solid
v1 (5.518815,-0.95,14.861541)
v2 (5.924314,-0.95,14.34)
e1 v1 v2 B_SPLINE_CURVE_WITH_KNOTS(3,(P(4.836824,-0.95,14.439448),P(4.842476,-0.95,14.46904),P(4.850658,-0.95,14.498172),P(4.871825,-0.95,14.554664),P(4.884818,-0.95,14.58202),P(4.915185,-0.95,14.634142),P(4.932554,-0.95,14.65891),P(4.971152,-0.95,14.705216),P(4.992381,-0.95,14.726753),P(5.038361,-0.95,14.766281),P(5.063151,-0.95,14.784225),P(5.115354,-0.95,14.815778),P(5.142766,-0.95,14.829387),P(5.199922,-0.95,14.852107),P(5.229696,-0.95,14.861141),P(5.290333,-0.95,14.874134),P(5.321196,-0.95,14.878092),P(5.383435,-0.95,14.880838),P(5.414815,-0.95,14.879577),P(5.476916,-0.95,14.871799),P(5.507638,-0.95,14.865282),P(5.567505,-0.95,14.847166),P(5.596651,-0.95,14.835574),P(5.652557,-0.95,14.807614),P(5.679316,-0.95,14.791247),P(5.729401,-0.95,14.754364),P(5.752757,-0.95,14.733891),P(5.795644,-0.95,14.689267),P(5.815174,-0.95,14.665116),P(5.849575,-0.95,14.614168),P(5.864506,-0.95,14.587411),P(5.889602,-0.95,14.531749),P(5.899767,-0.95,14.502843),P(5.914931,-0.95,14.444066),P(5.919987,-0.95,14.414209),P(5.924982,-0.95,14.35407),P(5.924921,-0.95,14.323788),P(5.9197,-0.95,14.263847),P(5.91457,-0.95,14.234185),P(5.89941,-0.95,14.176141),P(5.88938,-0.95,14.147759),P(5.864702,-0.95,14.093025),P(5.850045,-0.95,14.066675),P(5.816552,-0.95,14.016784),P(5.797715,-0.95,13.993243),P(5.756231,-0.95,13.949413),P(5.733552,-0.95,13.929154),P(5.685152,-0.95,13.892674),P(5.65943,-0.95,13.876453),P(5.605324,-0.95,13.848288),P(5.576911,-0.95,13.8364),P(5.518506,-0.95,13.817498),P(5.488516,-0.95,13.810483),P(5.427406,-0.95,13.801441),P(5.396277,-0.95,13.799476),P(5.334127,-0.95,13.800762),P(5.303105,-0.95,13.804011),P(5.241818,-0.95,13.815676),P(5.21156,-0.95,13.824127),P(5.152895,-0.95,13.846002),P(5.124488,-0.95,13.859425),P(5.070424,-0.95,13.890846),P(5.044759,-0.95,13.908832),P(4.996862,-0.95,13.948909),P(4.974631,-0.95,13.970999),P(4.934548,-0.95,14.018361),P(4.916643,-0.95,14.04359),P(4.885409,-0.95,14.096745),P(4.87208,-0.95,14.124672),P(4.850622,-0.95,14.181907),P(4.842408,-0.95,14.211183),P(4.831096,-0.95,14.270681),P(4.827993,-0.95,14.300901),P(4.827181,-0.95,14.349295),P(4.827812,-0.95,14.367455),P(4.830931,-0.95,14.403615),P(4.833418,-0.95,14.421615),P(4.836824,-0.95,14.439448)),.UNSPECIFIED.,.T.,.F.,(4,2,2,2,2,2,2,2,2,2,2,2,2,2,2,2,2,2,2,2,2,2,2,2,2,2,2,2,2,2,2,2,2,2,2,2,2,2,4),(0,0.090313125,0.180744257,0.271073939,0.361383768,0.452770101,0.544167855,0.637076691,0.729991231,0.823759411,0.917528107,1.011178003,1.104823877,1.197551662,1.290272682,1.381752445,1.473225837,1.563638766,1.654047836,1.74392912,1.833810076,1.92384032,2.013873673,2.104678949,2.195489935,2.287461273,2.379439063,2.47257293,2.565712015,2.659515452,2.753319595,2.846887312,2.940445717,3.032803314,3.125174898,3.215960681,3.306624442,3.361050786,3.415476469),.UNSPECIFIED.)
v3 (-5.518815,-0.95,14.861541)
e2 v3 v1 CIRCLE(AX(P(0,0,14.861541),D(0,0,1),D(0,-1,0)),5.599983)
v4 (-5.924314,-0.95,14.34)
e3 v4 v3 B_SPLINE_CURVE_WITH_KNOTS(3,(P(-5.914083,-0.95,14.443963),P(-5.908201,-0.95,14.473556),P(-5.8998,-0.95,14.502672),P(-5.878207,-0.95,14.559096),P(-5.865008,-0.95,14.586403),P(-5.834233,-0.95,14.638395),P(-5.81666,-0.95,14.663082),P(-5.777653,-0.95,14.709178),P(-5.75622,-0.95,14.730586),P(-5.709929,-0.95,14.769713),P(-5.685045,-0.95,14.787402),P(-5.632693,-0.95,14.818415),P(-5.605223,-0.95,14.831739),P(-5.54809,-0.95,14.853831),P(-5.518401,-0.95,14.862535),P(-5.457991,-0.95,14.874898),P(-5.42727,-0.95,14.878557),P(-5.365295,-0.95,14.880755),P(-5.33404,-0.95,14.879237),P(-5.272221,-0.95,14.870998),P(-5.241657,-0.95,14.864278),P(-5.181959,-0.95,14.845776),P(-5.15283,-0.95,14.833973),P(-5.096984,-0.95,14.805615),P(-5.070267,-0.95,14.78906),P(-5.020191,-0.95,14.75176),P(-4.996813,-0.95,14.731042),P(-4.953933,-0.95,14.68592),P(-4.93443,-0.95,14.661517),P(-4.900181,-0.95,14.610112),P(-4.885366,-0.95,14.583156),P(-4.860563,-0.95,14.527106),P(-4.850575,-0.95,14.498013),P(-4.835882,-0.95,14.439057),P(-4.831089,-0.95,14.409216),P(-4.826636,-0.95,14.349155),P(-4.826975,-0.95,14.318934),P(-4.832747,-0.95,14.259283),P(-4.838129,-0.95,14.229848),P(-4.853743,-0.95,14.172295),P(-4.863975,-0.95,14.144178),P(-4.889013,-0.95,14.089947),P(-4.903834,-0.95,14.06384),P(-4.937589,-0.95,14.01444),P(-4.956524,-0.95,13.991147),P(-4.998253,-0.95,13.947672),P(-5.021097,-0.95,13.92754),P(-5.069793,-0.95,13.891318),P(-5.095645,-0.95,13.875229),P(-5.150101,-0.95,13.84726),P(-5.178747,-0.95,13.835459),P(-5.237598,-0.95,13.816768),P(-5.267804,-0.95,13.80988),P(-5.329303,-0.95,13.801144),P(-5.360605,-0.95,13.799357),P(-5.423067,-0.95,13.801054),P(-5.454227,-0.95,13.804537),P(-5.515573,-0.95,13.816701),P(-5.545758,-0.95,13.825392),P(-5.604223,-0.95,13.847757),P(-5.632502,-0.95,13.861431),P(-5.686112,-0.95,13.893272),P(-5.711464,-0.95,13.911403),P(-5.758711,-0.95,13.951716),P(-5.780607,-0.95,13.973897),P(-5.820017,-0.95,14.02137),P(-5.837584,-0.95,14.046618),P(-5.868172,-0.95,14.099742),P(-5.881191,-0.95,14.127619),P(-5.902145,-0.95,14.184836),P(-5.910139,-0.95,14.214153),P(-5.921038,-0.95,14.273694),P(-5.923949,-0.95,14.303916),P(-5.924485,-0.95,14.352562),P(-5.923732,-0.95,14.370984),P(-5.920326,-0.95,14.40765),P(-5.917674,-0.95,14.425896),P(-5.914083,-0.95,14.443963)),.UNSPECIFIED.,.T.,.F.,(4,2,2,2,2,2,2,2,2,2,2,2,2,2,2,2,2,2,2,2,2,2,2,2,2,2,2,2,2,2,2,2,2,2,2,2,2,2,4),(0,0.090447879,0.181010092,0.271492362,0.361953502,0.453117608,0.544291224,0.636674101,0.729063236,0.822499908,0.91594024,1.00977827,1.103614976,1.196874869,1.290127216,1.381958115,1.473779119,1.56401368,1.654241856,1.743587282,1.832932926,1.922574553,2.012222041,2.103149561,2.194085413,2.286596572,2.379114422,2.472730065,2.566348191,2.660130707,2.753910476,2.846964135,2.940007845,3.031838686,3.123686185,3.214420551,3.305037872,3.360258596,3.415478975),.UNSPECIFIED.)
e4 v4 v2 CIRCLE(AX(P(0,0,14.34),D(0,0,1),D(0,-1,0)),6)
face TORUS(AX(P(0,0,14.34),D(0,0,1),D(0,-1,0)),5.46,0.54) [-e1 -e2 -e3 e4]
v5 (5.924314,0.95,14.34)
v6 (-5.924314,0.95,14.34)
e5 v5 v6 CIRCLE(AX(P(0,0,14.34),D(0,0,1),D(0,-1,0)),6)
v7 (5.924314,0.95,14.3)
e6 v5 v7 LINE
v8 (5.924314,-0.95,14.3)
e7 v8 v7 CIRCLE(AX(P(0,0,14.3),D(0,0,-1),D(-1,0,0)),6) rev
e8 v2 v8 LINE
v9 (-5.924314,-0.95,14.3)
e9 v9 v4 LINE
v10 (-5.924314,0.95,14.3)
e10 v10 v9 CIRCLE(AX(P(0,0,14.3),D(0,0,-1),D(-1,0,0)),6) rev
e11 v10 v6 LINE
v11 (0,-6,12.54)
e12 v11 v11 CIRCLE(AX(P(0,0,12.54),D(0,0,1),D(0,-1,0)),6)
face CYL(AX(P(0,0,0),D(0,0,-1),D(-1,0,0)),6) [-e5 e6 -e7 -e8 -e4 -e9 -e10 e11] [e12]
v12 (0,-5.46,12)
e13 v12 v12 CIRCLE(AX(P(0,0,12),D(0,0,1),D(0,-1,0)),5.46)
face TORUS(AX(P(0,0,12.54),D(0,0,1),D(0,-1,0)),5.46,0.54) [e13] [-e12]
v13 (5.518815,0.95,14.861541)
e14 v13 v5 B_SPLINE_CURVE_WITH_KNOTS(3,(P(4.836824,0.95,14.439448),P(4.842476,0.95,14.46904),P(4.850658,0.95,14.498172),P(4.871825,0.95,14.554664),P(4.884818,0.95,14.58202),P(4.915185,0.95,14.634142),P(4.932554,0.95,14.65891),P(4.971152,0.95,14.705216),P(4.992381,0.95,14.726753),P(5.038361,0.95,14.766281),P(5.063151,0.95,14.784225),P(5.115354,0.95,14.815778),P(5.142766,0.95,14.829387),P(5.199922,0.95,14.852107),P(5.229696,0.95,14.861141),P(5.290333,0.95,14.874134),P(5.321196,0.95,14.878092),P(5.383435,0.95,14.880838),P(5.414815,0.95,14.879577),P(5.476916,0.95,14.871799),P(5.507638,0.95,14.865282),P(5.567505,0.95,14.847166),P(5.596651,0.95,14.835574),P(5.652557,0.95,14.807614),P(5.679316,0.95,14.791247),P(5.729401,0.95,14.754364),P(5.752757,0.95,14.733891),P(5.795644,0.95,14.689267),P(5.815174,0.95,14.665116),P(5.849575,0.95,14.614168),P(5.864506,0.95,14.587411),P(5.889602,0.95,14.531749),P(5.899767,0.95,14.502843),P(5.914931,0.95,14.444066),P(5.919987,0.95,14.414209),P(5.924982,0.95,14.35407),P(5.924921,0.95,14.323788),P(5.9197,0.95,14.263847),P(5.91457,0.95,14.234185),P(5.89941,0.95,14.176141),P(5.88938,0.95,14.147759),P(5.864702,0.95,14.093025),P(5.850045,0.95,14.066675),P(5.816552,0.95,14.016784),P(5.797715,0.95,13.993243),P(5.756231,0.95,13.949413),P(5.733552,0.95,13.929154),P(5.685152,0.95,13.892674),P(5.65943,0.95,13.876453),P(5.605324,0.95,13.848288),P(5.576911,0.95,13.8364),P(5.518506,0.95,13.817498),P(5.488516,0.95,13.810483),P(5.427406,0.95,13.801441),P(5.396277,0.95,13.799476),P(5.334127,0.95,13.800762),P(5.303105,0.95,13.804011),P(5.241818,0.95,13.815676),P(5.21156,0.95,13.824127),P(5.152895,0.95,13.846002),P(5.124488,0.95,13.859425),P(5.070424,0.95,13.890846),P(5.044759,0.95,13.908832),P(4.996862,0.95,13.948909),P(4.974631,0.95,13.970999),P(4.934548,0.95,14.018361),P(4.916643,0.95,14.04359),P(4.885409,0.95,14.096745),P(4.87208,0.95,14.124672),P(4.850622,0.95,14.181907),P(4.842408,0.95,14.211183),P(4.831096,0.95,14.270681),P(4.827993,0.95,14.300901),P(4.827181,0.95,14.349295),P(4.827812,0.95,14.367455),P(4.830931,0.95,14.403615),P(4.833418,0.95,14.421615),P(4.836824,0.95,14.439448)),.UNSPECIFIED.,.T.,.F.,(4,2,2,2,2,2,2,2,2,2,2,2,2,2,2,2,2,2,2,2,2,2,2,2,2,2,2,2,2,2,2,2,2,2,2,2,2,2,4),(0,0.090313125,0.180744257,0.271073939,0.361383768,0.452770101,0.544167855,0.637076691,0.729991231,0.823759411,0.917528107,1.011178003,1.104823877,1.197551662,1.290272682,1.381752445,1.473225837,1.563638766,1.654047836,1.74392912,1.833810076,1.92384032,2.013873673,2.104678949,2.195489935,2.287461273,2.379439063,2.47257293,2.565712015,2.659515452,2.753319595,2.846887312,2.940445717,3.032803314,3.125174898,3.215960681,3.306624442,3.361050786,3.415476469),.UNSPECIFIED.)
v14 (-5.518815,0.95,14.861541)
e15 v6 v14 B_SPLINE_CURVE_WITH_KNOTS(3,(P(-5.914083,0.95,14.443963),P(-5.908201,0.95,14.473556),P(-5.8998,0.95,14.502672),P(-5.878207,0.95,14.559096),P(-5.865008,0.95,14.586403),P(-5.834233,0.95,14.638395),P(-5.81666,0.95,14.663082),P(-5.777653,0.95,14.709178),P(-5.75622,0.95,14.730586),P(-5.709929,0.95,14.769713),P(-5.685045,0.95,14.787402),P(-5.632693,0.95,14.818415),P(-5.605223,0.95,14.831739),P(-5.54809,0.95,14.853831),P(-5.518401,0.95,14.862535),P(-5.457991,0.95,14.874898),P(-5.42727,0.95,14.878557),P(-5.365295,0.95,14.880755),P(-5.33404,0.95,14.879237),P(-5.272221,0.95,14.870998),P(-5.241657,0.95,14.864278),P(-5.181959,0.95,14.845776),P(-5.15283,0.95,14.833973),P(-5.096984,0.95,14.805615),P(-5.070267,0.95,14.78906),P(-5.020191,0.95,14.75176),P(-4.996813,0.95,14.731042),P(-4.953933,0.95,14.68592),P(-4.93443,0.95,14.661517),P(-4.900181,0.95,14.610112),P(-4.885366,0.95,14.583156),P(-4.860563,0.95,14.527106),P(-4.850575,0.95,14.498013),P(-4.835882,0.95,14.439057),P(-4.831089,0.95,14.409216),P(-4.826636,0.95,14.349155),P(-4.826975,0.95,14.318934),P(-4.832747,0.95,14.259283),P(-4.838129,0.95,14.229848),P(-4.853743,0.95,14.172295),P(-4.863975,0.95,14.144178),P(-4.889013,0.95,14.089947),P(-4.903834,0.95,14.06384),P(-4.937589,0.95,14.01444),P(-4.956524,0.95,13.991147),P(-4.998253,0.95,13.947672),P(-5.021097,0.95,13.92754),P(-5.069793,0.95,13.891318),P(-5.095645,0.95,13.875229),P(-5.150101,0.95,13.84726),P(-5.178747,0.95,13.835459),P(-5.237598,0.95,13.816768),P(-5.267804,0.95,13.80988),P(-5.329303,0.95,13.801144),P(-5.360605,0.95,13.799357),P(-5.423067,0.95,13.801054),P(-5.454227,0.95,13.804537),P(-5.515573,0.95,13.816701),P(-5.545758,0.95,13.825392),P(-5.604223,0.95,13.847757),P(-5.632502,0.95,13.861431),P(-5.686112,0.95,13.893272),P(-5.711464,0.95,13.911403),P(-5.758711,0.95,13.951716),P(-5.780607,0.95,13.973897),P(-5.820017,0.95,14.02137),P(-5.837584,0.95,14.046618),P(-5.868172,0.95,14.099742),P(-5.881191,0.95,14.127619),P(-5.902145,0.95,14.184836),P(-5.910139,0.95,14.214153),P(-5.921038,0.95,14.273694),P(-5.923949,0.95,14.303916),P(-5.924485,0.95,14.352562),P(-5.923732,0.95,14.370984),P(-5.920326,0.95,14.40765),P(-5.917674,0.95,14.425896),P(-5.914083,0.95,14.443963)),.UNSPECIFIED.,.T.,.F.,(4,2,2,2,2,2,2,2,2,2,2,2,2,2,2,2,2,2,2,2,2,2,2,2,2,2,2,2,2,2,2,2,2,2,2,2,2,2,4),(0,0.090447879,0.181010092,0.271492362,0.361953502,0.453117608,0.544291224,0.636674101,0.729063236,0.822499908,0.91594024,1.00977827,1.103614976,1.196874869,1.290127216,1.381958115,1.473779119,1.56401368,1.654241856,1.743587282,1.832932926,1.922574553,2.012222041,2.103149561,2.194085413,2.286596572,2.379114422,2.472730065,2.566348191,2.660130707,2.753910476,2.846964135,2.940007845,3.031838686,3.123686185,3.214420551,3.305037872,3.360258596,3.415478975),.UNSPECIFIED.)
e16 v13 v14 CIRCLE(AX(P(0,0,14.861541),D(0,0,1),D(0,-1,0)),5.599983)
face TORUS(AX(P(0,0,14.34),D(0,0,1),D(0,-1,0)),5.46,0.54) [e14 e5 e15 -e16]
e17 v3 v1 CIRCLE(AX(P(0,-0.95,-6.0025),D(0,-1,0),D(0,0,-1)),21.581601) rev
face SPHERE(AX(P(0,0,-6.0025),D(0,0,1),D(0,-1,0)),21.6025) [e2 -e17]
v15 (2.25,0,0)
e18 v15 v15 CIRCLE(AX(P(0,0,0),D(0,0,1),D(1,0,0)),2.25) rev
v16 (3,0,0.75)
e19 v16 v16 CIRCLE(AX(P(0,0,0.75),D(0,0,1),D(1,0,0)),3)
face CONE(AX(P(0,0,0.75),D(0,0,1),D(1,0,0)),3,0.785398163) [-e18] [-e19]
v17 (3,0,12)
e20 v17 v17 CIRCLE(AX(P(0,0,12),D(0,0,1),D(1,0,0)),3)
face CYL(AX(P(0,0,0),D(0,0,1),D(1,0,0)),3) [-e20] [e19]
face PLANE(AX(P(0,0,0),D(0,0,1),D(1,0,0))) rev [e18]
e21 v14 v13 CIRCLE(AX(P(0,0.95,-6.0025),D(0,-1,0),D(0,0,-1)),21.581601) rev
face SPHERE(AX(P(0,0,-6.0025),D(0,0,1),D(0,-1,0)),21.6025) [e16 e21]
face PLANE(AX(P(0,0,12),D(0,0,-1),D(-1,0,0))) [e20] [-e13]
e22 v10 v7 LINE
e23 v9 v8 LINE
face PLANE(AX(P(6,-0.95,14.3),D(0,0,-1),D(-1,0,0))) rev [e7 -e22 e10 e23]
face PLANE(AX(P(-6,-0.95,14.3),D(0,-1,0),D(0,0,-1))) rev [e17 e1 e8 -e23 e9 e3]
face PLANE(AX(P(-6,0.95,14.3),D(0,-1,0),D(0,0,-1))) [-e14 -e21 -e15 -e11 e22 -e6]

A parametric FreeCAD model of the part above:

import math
import FreeCAD as App
import Part
import Sketcher
Q = App.Units.Quantity


def edges_at(feature, points):
    """Names of the edges that pass closest to the given points."""
    edges = feature.Shape.Edges
    near = lambda p: min(range(len(edges)), key=lambda i: edges[i].distToShape(Part.Vertex(*p))[0])
    return sorted({f"Edge{near(p) + 1}" for p in points})

doc = App.newDocument("Part")
body = doc.addObject("PartDesign::Body", "Body")

# Sketch on YZ plane
sketch1 = body.newObject("Sketcher::SketchObject", "Sketch")
sketch1.AttachmentSupport = (doc.getObject("YZ_Plane"), [""])
sketch1.MapMode = "FlatFace"
sketch1.addGeometry([
    Part.LineSegment(App.Vector(3, 12, 0), App.Vector(0, 12, 0)),
    Part.LineSegment(App.Vector(0, 12, 0), App.Vector(0, 0, 0)),
    Part.LineSegment(App.Vector(0, 0, 0), App.Vector(3, 0, 0)),
    Part.LineSegment(App.Vector(3, 0, 0), App.Vector(3, 12, 0)),
], False)
sketch1.addConstraint([
    Sketcher.Constraint("Coincident", 0, 2, 1, 1),
    Sketcher.Constraint("Coincident", 1, 2, 2, 1),
    Sketcher.Constraint("Coincident", 2, 2, 3, 1),
    Sketcher.Constraint("Coincident", 3, 2, 0, 1),
    Sketcher.Constraint("Horizontal", 0),
    Sketcher.Constraint("Vertical", 1),
    Sketcher.Constraint("Horizontal", 2),
    Sketcher.Constraint("Vertical", 3),
    Sketcher.Constraint("Coincident", 1, 2, -1, 1),
    Sketcher.Constraint("DistanceX", 0, 2, 0, 1, Q("3 mm")),
    Sketcher.Constraint("DistanceY", 1, 2, 1, 1, Q("12 mm")),
])
revolution = body.newObject("PartDesign::Revolution", "Revolution")
revolution.Profile = sketch1
revolution.ReferenceAxis = (sketch1, ["V_Axis"])
revolution.Angle = 360
doc.recompute()

chamfer = body.newObject("PartDesign::Chamfer", "Chamfer")
chamfer.Base = (revolution, edges_at(revolution, [(-3, 0, 0)]))
chamfer.Size = 0.75

# Sketch on YZ plane
sketch2 = body.newObject("Sketcher::SketchObject", "Sketch001")
sketch2.AttachmentSupport = (doc.getObject("YZ_Plane"), [""])
sketch2.MapMode = "FlatFace"
sketch2.addGeometry([
    Part.LineSegment(App.Vector(6, 15.6, 0), App.Vector(0, 15.6, 0)),
    Part.LineSegment(App.Vector(0, 15.6, 0), App.Vector(0, 12, 0)),
    Part.LineSegment(App.Vector(0, 12, 0), App.Vector(6, 12, 0)),
    Part.LineSegment(App.Vector(6, 12, 0), App.Vector(6, 15.6, 0)),
], False)
sketch2.addConstraint([
    Sketcher.Constraint("Coincident", 0, 2, 1, 1),
    Sketcher.Constraint("Coincident", 1, 2, 2, 1),
    Sketcher.Constraint("Coincident", 2, 2, 3, 1),
    Sketcher.Constraint("Coincident", 3, 2, 0, 1),
    Sketcher.Constraint("Horizontal", 0),
    Sketcher.Constraint("Vertical", 1),
    Sketcher.Constraint("Horizontal", 2),
    Sketcher.Constraint("Vertical", 3),
    Sketcher.Constraint("PointOnObject", 0, 2, -2),
    Sketcher.Constraint("DistanceX", 0, 2, 0, 1, Q("6 mm")),
    Sketcher.Constraint("DistanceY", 1, 2, 1, 1, Q("3.6 mm")),
    Sketcher.Constraint("DistanceY", -1, 1, 1, 2, Q("12 mm")),
])
revolution2 = body.newObject("PartDesign::Revolution", "Revolution001")
revolution2.Profile = sketch2
revolution2.ReferenceAxis = (sketch2, ["V_Axis"])
revolution2.Angle = 360

# Sketch on YZ plane
sketch3 = body.newObject("Sketcher::SketchObject", "Sketch002")
sketch3.AttachmentSupport = (doc.getObject("YZ_Plane"), [""])
sketch3.MapMode = "FlatFace"
sketch3.addGeometry([
    Part.LineSegment(App.Vector(6, 14.34, 0), App.Vector(6, 12.54, 0)),  # 0
    Part.ArcOfCircle(Part.Circle(App.Vector(5.46, 12.54, 0), App.Vector(0, 0, 1), 0.54), math.radians(-90), math.radians(0)),  # 1
    Part.LineSegment(App.Vector(5.46, 12, 0), App.Vector(5.46, 11.365, 0)),  # 2
    Part.LineSegment(App.Vector(5.46, 11.365, 0), App.Vector(6.635, 11.365, 0)),  # 3
    Part.LineSegment(App.Vector(6.635, 11.365, 0), App.Vector(6.635, 16.235, 0)),  # 4
    Part.LineSegment(App.Vector(6.635, 16.235, 0), App.Vector(0, 16.235, 0)),  # 5
    Part.LineSegment(App.Vector(0, 16.235, 0), App.Vector(0, 15.6, 0)),  # 6
    Part.ArcOfCircle(Part.Circle(App.Vector(0, -6.0025, 0), App.Vector(0, 0, 1), 21.6025), math.radians(74.975712), math.radians(90)),  # 7
    Part.ArcOfCircle(Part.Circle(App.Vector(5.46, 14.34, 0), App.Vector(0, 0, 1), 0.54), math.radians(0), math.radians(74.975712)),  # 8
], False)
sketch3.addConstraint([
    Sketcher.Constraint("Tangent", 0, 2, 1, 2),
    Sketcher.Constraint("Coincident", 1, 1, 2, 1),
    Sketcher.Constraint("Coincident", 2, 2, 3, 1),
    Sketcher.Constraint("Coincident", 3, 2, 4, 1),
    Sketcher.Constraint("Coincident", 4, 2, 5, 1),
    Sketcher.Constraint("Coincident", 5, 2, 6, 1),
    Sketcher.Constraint("Coincident", 6, 2, 7, 2),
    Sketcher.Constraint("Tangent", 7, 1, 8, 2),
    Sketcher.Constraint("Tangent", 8, 1, 0, 1),
    Sketcher.Constraint("Vertical", 0),
    Sketcher.Constraint("Vertical", 2),
    Sketcher.Constraint("Horizontal", 3),
    Sketcher.Constraint("Vertical", 4),
    Sketcher.Constraint("Horizontal", 5),
    Sketcher.Constraint("Vertical", 6),
    Sketcher.Constraint("Equal", 1, 8),
    Sketcher.Constraint("PointOnObject", 7, 3, -2),
    Sketcher.Constraint("PointOnObject", 5, 2, -2),
    Sketcher.Constraint("Vertical", 8, 3, 1, 1),
    Sketcher.Constraint("Equal", 2, 6),
    Sketcher.Constraint("Radius", 1, Q("0.54 mm")),
    Sketcher.Constraint("DistanceY", 0, 2, 0, 1, Q("1.8 mm")),
    Sketcher.Constraint("DistanceX", -1, 1, 0, 2, Q("6 mm")),
    Sketcher.Constraint("DistanceY", -1, 1, 1, 1, Q("12 mm")),
    Sketcher.Constraint("DistanceY", 4, 1, 4, 2, Q("4.87 mm")),
    Sketcher.Constraint("DistanceY", -1, 1, 6, 2, Q("15.6 mm")),
    Sketcher.Constraint("DistanceX", 3, 1, 3, 2, Q("1.175 mm")),
])
groove = body.newObject("PartDesign::Groove", "Groove")
groove.Profile = sketch3
groove.ReferenceAxis = (sketch3, ["V_Axis"])
groove.Angle = 360

# Sketch on XY plane
sketch4 = body.newObject("Sketcher::SketchObject", "Sketch003")
sketch4.AttachmentSupport = (doc.getObject("XY_Plane"), [""])
sketch4.MapMode = "FlatFace"
sketch4.AttachmentOffset = App.Placement(App.Vector(0, 0, 14.3), App.Rotation())
sketch4.addGeometry([
    Part.LineSegment(App.Vector(-6, 0.95, 0), App.Vector(-6, -0.95, 0)),
    Part.LineSegment(App.Vector(-6, -0.95, 0), App.Vector(6, -0.95, 0)),
    Part.LineSegment(App.Vector(6, -0.95, 0), App.Vector(6, 0.95, 0)),
    Part.LineSegment(App.Vector(6, 0.95, 0), App.Vector(-6, 0.95, 0)),
], False)
sketch4.addConstraint([
    Sketcher.Constraint("Coincident", 0, 2, 1, 1),
    Sketcher.Constraint("Coincident", 1, 2, 2, 1),
    Sketcher.Constraint("Coincident", 2, 2, 3, 1),
    Sketcher.Constraint("Coincident", 3, 2, 0, 1),
    Sketcher.Constraint("Vertical", 0),
    Sketcher.Constraint("Horizontal", 1),
    Sketcher.Constraint("Vertical", 2),
    Sketcher.Constraint("Horizontal", 3),
    Sketcher.Constraint("Symmetric", 0, 2, 2, 2, -1, 1),
    Sketcher.Constraint("DistanceX", 1, 1, 1, 2, Q("12 mm")),
    Sketcher.Constraint("DistanceY", 0, 2, 0, 1, Q("1.9 mm")),
])
pocket1 = body.newObject("PartDesign::Pocket", "Pocket")
pocket1.Profile = sketch4
pocket1.Length = 1.3
pocket1.Reversed = True

doc.recompute()
